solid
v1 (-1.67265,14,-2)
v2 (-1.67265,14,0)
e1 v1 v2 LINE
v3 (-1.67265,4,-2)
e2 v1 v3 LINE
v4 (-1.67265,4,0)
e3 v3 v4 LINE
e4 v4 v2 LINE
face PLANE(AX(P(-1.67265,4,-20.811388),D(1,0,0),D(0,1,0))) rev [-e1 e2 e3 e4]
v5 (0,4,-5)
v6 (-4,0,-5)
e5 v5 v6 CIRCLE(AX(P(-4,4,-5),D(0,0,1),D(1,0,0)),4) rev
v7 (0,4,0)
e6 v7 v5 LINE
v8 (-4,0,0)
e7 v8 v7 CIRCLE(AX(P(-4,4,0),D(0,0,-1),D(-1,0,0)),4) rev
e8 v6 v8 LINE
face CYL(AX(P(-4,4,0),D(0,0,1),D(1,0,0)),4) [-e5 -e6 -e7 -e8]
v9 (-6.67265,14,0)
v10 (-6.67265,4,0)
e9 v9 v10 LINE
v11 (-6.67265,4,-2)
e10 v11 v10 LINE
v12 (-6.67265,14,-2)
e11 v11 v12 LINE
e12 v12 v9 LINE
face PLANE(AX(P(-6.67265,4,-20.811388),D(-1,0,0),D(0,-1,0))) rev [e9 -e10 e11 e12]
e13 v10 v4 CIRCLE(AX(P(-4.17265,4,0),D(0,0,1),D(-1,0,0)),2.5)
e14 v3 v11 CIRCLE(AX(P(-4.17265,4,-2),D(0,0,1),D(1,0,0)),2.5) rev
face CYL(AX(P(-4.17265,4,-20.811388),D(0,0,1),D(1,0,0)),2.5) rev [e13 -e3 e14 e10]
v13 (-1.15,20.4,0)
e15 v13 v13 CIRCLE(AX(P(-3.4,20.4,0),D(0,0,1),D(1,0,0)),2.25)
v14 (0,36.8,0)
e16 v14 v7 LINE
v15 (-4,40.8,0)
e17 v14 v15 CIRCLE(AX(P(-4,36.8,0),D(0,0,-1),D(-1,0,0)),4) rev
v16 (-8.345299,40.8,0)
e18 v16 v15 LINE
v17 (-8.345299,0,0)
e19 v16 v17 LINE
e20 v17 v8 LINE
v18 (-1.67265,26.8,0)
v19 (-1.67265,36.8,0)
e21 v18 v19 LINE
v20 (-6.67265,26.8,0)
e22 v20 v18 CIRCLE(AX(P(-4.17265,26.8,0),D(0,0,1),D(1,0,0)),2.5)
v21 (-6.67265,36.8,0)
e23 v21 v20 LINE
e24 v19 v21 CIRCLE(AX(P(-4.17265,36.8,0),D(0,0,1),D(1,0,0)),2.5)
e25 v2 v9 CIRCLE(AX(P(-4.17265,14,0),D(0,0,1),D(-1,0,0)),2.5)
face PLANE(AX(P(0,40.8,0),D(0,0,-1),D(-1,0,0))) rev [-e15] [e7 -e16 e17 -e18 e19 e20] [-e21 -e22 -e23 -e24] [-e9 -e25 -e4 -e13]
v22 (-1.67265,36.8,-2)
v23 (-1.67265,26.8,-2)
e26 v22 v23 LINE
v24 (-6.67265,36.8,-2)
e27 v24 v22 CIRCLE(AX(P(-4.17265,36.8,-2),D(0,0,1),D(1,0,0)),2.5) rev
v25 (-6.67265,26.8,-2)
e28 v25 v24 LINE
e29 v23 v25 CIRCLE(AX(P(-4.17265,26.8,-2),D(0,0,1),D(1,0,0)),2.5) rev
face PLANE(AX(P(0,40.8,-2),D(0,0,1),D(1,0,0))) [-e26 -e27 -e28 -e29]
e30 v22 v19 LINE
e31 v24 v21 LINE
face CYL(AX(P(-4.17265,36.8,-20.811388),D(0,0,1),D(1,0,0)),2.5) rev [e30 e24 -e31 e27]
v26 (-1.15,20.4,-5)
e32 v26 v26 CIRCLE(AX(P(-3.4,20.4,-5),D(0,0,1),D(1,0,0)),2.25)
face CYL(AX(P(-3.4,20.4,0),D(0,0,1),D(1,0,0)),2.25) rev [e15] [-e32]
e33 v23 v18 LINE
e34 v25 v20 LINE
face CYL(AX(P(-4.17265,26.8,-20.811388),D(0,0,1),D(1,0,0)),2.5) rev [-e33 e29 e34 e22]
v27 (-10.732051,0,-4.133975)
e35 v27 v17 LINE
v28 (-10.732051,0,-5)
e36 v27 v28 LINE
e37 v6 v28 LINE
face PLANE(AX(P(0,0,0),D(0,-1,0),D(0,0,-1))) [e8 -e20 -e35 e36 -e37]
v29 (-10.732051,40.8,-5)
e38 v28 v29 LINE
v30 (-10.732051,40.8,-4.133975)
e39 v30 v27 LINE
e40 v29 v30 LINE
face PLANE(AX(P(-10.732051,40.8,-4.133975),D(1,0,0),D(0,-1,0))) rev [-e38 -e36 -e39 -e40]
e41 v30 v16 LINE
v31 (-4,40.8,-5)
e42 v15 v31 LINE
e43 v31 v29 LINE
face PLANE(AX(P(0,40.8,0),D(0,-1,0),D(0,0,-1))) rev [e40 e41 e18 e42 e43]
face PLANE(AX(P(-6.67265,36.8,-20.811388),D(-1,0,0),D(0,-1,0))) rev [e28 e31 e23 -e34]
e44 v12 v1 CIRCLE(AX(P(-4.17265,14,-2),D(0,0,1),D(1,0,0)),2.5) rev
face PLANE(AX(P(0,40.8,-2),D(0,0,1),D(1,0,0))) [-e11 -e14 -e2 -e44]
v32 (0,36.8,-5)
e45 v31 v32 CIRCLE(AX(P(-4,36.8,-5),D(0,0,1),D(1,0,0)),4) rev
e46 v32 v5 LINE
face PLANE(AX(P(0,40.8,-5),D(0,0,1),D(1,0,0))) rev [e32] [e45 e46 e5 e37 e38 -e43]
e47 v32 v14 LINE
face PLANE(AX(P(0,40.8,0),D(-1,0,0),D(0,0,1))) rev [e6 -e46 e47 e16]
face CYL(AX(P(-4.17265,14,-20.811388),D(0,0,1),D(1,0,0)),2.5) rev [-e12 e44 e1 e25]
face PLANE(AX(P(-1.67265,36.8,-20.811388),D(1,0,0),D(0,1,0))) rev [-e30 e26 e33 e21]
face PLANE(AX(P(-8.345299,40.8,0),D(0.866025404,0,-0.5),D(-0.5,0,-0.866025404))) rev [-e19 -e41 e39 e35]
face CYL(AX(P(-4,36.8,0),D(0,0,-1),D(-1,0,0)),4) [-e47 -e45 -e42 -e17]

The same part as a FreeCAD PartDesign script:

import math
import FreeCAD as App
import Part
import Sketcher
Q = App.Units.Quantity


def edges_at(feature, points):
    """Names of the edges that pass closest to the given points."""
    edges = feature.Shape.Edges
    near = lambda p: min(range(len(edges)), key=lambda i: edges[i].distToShape(Part.Vertex(*p))[0])
    return sorted({f"Edge{near(p) + 1}" for p in points})

doc = App.newDocument("Part")
body = doc.addObject("PartDesign::Body", "Body")

sketch1 = body.newObject("Sketcher::SketchObject", "Sketch")
sketch1.AttachmentSupport = (doc.getObject("XZ_Plane"), [""])
sketch1.MapMode = "FlatFace"
sketch1.addGeometry([
    Part.LineSegment(App.Vector(0, 0, 0), App.Vector(0, -5, 0)),
    Part.LineSegment(App.Vector(0, -5, 0), App.Vector(-11, -5, 0)),
    Part.LineSegment(App.Vector(-11, -5, 0), App.Vector(-8, 0, 0)),
    Part.LineSegment(App.Vector(-8, 0, 0), App.Vector(0, 0, 0)),
], False)
sketch1.addConstraint([
    Sketcher.Constraint("Coincident", 0, 2, 1, 1),
    Sketcher.Constraint("Coincident", 1, 2, 2, 1),
    Sketcher.Constraint("Coincident", 2, 2, 3, 1),
    Sketcher.Constraint("Coincident", 3, 2, 0, 1),
    Sketcher.Constraint("Vertical", 0),
    Sketcher.Constraint("Horizontal", 1),
    Sketcher.Constraint("Horizontal", 3),
    Sketcher.Constraint("Coincident", 3, 2, -1, 1),
    Sketcher.Constraint("DistanceY", 0, 2, 0, 1, 5.0),
    Sketcher.Constraint("Angle", 2, Q("60 deg")),
    Sketcher.Constraint("DistanceX", 3, 1, 3, 2, 8.345299),
])
pad1 = body.newObject("PartDesign::Pad", "Pad")
pad1.Profile = sketch1
pad1.Length = 40.8
pad1.Reversed = True
doc.recompute()

fillet = body.newObject("PartDesign::Fillet", "Fillet")
fillet.Base = (pad1, edges_at(pad1, [(0, 0, -2.5), (0, 40.8, -2.5)]))
fillet.Radius = 4

sketch2 = body.newObject("Sketcher::SketchObject", "Sketch001")
sketch2.AttachmentSupport = (doc.getObject("XY_Plane"), [""])
sketch2.MapMode = "FlatFace"
sketch2.addGeometry([
    Part.LineSegment(App.Vector(-1.7, 26.8, 0), App.Vector(-1.7, 36.8, 0)),
    Part.ArcOfCircle(Part.Circle(App.Vector(-4.2, 36.8, 0), App.Vector(0, 0, 1), 2.5), math.radians(0), math.radians(180)),
    Part.LineSegment(App.Vector(-6.7, 36.8, 0), App.Vector(-6.7, 26.8, 0)),
    Part.ArcOfCircle(Part.Circle(App.Vector(-4.2, 26.8, 0), App.Vector(0, 0, 1), 2.5), math.radians(180), math.radians(360)),
    Part.LineSegment(App.Vector(-1.7, 4, 0), App.Vector(-1.7, 14, 0)),
    Part.ArcOfCircle(Part.Circle(App.Vector(-4.2, 14, 0), App.Vector(0, 0, 1), 2.5), math.radians(0), math.radians(180)),
    Part.LineSegment(App.Vector(-6.7, 14, 0), App.Vector(-6.7, 4, 0)),
    Part.ArcOfCircle(Part.Circle(App.Vector(-4.2, 4, 0), App.Vector(0, 0, 1), 2.5), math.radians(180), math.radians(360)),
], False)
sketch2.addConstraint([
    Sketcher.Constraint("Tangent", 0, 2, 1, 1),
    Sketcher.Constraint("Tangent", 1, 2, 2, 1),
    Sketcher.Constraint("Tangent", 2, 2, 3, 1),
    Sketcher.Constraint("Tangent", 3, 2, 0, 1),
    Sketcher.Constraint("Tangent", 4, 2, 5, 1),
    Sketcher.Constraint("Tangent", 5, 2, 6, 1),
    Sketcher.Constraint("Tangent", 6, 2, 7, 1),
    Sketcher.Constraint("Tangent", 7, 2, 4, 1),
    Sketcher.Constraint("Vertical", 0),
    Sketcher.Constraint("Vertical", 2),
    Sketcher.Constraint("Vertical", 4),
    Sketcher.Constraint("Vertical", 6),
    Sketcher.Constraint("Equal", 3, 5),
    Sketcher.Constraint("Vertical", 3, 3, 5, 3),
    Sketcher.Constraint("Equal", 2, 4),
    Sketcher.Constraint("Radius", 1, 2.5),
    Sketcher.Constraint("DistanceY", 0, 1, 0, 2, 10.0),
    Sketcher.Constraint("DistanceY", -1, 1, 5, 3, 14.0),
    Sketcher.Constraint("DistanceY", -1, 1, 1, 3, 36.8),
    Sketcher.Constraint("DistanceX", 1, 3, -1, 1, 4.17265),
])
pocket1 = body.newObject("PartDesign::Pocket", "Pocket")
pocket1.Profile = sketch2
pocket1.Length = 2

sketch3 = body.newObject("Sketcher::SketchObject", "Sketch002")
sketch3.AttachmentSupport = (doc.getObject("XY_Plane"), [""])
sketch3.MapMode = "FlatFace"
sketch3.addGeometry(Part.Circle(App.Vector(-3.4, 20.4, 0), App.Vector(0, 0, 1), 2.2), False)
sketch3.addConstraint([
    Sketcher.Constraint("Diameter", 0, 4.5),
    Sketcher.Constraint("DistanceX", 0, 3, -1, 1, 3.4),
    Sketcher.Constraint("DistanceY", -1, 1, 0, 3, 20.4),
])
doc.recompute()
hole = body.newObject("PartDesign::Hole", "Hole")
hole.Profile = sketch3
hole.ThreadType = "None"
hole.Diameter = 4.5
hole.DepthType = "ThroughAll"
doc.recompute()

chamfer = body.newObject("PartDesign::Chamfer", "Chamfer")
chamfer.Base = (hole, edges_at(hole, [(-11.232, 20.4, -5)]))
chamfer.ChamferType = "Two distances"
chamfer.Size = 0.5
chamfer.Size2 = 1

doc.recompute()
